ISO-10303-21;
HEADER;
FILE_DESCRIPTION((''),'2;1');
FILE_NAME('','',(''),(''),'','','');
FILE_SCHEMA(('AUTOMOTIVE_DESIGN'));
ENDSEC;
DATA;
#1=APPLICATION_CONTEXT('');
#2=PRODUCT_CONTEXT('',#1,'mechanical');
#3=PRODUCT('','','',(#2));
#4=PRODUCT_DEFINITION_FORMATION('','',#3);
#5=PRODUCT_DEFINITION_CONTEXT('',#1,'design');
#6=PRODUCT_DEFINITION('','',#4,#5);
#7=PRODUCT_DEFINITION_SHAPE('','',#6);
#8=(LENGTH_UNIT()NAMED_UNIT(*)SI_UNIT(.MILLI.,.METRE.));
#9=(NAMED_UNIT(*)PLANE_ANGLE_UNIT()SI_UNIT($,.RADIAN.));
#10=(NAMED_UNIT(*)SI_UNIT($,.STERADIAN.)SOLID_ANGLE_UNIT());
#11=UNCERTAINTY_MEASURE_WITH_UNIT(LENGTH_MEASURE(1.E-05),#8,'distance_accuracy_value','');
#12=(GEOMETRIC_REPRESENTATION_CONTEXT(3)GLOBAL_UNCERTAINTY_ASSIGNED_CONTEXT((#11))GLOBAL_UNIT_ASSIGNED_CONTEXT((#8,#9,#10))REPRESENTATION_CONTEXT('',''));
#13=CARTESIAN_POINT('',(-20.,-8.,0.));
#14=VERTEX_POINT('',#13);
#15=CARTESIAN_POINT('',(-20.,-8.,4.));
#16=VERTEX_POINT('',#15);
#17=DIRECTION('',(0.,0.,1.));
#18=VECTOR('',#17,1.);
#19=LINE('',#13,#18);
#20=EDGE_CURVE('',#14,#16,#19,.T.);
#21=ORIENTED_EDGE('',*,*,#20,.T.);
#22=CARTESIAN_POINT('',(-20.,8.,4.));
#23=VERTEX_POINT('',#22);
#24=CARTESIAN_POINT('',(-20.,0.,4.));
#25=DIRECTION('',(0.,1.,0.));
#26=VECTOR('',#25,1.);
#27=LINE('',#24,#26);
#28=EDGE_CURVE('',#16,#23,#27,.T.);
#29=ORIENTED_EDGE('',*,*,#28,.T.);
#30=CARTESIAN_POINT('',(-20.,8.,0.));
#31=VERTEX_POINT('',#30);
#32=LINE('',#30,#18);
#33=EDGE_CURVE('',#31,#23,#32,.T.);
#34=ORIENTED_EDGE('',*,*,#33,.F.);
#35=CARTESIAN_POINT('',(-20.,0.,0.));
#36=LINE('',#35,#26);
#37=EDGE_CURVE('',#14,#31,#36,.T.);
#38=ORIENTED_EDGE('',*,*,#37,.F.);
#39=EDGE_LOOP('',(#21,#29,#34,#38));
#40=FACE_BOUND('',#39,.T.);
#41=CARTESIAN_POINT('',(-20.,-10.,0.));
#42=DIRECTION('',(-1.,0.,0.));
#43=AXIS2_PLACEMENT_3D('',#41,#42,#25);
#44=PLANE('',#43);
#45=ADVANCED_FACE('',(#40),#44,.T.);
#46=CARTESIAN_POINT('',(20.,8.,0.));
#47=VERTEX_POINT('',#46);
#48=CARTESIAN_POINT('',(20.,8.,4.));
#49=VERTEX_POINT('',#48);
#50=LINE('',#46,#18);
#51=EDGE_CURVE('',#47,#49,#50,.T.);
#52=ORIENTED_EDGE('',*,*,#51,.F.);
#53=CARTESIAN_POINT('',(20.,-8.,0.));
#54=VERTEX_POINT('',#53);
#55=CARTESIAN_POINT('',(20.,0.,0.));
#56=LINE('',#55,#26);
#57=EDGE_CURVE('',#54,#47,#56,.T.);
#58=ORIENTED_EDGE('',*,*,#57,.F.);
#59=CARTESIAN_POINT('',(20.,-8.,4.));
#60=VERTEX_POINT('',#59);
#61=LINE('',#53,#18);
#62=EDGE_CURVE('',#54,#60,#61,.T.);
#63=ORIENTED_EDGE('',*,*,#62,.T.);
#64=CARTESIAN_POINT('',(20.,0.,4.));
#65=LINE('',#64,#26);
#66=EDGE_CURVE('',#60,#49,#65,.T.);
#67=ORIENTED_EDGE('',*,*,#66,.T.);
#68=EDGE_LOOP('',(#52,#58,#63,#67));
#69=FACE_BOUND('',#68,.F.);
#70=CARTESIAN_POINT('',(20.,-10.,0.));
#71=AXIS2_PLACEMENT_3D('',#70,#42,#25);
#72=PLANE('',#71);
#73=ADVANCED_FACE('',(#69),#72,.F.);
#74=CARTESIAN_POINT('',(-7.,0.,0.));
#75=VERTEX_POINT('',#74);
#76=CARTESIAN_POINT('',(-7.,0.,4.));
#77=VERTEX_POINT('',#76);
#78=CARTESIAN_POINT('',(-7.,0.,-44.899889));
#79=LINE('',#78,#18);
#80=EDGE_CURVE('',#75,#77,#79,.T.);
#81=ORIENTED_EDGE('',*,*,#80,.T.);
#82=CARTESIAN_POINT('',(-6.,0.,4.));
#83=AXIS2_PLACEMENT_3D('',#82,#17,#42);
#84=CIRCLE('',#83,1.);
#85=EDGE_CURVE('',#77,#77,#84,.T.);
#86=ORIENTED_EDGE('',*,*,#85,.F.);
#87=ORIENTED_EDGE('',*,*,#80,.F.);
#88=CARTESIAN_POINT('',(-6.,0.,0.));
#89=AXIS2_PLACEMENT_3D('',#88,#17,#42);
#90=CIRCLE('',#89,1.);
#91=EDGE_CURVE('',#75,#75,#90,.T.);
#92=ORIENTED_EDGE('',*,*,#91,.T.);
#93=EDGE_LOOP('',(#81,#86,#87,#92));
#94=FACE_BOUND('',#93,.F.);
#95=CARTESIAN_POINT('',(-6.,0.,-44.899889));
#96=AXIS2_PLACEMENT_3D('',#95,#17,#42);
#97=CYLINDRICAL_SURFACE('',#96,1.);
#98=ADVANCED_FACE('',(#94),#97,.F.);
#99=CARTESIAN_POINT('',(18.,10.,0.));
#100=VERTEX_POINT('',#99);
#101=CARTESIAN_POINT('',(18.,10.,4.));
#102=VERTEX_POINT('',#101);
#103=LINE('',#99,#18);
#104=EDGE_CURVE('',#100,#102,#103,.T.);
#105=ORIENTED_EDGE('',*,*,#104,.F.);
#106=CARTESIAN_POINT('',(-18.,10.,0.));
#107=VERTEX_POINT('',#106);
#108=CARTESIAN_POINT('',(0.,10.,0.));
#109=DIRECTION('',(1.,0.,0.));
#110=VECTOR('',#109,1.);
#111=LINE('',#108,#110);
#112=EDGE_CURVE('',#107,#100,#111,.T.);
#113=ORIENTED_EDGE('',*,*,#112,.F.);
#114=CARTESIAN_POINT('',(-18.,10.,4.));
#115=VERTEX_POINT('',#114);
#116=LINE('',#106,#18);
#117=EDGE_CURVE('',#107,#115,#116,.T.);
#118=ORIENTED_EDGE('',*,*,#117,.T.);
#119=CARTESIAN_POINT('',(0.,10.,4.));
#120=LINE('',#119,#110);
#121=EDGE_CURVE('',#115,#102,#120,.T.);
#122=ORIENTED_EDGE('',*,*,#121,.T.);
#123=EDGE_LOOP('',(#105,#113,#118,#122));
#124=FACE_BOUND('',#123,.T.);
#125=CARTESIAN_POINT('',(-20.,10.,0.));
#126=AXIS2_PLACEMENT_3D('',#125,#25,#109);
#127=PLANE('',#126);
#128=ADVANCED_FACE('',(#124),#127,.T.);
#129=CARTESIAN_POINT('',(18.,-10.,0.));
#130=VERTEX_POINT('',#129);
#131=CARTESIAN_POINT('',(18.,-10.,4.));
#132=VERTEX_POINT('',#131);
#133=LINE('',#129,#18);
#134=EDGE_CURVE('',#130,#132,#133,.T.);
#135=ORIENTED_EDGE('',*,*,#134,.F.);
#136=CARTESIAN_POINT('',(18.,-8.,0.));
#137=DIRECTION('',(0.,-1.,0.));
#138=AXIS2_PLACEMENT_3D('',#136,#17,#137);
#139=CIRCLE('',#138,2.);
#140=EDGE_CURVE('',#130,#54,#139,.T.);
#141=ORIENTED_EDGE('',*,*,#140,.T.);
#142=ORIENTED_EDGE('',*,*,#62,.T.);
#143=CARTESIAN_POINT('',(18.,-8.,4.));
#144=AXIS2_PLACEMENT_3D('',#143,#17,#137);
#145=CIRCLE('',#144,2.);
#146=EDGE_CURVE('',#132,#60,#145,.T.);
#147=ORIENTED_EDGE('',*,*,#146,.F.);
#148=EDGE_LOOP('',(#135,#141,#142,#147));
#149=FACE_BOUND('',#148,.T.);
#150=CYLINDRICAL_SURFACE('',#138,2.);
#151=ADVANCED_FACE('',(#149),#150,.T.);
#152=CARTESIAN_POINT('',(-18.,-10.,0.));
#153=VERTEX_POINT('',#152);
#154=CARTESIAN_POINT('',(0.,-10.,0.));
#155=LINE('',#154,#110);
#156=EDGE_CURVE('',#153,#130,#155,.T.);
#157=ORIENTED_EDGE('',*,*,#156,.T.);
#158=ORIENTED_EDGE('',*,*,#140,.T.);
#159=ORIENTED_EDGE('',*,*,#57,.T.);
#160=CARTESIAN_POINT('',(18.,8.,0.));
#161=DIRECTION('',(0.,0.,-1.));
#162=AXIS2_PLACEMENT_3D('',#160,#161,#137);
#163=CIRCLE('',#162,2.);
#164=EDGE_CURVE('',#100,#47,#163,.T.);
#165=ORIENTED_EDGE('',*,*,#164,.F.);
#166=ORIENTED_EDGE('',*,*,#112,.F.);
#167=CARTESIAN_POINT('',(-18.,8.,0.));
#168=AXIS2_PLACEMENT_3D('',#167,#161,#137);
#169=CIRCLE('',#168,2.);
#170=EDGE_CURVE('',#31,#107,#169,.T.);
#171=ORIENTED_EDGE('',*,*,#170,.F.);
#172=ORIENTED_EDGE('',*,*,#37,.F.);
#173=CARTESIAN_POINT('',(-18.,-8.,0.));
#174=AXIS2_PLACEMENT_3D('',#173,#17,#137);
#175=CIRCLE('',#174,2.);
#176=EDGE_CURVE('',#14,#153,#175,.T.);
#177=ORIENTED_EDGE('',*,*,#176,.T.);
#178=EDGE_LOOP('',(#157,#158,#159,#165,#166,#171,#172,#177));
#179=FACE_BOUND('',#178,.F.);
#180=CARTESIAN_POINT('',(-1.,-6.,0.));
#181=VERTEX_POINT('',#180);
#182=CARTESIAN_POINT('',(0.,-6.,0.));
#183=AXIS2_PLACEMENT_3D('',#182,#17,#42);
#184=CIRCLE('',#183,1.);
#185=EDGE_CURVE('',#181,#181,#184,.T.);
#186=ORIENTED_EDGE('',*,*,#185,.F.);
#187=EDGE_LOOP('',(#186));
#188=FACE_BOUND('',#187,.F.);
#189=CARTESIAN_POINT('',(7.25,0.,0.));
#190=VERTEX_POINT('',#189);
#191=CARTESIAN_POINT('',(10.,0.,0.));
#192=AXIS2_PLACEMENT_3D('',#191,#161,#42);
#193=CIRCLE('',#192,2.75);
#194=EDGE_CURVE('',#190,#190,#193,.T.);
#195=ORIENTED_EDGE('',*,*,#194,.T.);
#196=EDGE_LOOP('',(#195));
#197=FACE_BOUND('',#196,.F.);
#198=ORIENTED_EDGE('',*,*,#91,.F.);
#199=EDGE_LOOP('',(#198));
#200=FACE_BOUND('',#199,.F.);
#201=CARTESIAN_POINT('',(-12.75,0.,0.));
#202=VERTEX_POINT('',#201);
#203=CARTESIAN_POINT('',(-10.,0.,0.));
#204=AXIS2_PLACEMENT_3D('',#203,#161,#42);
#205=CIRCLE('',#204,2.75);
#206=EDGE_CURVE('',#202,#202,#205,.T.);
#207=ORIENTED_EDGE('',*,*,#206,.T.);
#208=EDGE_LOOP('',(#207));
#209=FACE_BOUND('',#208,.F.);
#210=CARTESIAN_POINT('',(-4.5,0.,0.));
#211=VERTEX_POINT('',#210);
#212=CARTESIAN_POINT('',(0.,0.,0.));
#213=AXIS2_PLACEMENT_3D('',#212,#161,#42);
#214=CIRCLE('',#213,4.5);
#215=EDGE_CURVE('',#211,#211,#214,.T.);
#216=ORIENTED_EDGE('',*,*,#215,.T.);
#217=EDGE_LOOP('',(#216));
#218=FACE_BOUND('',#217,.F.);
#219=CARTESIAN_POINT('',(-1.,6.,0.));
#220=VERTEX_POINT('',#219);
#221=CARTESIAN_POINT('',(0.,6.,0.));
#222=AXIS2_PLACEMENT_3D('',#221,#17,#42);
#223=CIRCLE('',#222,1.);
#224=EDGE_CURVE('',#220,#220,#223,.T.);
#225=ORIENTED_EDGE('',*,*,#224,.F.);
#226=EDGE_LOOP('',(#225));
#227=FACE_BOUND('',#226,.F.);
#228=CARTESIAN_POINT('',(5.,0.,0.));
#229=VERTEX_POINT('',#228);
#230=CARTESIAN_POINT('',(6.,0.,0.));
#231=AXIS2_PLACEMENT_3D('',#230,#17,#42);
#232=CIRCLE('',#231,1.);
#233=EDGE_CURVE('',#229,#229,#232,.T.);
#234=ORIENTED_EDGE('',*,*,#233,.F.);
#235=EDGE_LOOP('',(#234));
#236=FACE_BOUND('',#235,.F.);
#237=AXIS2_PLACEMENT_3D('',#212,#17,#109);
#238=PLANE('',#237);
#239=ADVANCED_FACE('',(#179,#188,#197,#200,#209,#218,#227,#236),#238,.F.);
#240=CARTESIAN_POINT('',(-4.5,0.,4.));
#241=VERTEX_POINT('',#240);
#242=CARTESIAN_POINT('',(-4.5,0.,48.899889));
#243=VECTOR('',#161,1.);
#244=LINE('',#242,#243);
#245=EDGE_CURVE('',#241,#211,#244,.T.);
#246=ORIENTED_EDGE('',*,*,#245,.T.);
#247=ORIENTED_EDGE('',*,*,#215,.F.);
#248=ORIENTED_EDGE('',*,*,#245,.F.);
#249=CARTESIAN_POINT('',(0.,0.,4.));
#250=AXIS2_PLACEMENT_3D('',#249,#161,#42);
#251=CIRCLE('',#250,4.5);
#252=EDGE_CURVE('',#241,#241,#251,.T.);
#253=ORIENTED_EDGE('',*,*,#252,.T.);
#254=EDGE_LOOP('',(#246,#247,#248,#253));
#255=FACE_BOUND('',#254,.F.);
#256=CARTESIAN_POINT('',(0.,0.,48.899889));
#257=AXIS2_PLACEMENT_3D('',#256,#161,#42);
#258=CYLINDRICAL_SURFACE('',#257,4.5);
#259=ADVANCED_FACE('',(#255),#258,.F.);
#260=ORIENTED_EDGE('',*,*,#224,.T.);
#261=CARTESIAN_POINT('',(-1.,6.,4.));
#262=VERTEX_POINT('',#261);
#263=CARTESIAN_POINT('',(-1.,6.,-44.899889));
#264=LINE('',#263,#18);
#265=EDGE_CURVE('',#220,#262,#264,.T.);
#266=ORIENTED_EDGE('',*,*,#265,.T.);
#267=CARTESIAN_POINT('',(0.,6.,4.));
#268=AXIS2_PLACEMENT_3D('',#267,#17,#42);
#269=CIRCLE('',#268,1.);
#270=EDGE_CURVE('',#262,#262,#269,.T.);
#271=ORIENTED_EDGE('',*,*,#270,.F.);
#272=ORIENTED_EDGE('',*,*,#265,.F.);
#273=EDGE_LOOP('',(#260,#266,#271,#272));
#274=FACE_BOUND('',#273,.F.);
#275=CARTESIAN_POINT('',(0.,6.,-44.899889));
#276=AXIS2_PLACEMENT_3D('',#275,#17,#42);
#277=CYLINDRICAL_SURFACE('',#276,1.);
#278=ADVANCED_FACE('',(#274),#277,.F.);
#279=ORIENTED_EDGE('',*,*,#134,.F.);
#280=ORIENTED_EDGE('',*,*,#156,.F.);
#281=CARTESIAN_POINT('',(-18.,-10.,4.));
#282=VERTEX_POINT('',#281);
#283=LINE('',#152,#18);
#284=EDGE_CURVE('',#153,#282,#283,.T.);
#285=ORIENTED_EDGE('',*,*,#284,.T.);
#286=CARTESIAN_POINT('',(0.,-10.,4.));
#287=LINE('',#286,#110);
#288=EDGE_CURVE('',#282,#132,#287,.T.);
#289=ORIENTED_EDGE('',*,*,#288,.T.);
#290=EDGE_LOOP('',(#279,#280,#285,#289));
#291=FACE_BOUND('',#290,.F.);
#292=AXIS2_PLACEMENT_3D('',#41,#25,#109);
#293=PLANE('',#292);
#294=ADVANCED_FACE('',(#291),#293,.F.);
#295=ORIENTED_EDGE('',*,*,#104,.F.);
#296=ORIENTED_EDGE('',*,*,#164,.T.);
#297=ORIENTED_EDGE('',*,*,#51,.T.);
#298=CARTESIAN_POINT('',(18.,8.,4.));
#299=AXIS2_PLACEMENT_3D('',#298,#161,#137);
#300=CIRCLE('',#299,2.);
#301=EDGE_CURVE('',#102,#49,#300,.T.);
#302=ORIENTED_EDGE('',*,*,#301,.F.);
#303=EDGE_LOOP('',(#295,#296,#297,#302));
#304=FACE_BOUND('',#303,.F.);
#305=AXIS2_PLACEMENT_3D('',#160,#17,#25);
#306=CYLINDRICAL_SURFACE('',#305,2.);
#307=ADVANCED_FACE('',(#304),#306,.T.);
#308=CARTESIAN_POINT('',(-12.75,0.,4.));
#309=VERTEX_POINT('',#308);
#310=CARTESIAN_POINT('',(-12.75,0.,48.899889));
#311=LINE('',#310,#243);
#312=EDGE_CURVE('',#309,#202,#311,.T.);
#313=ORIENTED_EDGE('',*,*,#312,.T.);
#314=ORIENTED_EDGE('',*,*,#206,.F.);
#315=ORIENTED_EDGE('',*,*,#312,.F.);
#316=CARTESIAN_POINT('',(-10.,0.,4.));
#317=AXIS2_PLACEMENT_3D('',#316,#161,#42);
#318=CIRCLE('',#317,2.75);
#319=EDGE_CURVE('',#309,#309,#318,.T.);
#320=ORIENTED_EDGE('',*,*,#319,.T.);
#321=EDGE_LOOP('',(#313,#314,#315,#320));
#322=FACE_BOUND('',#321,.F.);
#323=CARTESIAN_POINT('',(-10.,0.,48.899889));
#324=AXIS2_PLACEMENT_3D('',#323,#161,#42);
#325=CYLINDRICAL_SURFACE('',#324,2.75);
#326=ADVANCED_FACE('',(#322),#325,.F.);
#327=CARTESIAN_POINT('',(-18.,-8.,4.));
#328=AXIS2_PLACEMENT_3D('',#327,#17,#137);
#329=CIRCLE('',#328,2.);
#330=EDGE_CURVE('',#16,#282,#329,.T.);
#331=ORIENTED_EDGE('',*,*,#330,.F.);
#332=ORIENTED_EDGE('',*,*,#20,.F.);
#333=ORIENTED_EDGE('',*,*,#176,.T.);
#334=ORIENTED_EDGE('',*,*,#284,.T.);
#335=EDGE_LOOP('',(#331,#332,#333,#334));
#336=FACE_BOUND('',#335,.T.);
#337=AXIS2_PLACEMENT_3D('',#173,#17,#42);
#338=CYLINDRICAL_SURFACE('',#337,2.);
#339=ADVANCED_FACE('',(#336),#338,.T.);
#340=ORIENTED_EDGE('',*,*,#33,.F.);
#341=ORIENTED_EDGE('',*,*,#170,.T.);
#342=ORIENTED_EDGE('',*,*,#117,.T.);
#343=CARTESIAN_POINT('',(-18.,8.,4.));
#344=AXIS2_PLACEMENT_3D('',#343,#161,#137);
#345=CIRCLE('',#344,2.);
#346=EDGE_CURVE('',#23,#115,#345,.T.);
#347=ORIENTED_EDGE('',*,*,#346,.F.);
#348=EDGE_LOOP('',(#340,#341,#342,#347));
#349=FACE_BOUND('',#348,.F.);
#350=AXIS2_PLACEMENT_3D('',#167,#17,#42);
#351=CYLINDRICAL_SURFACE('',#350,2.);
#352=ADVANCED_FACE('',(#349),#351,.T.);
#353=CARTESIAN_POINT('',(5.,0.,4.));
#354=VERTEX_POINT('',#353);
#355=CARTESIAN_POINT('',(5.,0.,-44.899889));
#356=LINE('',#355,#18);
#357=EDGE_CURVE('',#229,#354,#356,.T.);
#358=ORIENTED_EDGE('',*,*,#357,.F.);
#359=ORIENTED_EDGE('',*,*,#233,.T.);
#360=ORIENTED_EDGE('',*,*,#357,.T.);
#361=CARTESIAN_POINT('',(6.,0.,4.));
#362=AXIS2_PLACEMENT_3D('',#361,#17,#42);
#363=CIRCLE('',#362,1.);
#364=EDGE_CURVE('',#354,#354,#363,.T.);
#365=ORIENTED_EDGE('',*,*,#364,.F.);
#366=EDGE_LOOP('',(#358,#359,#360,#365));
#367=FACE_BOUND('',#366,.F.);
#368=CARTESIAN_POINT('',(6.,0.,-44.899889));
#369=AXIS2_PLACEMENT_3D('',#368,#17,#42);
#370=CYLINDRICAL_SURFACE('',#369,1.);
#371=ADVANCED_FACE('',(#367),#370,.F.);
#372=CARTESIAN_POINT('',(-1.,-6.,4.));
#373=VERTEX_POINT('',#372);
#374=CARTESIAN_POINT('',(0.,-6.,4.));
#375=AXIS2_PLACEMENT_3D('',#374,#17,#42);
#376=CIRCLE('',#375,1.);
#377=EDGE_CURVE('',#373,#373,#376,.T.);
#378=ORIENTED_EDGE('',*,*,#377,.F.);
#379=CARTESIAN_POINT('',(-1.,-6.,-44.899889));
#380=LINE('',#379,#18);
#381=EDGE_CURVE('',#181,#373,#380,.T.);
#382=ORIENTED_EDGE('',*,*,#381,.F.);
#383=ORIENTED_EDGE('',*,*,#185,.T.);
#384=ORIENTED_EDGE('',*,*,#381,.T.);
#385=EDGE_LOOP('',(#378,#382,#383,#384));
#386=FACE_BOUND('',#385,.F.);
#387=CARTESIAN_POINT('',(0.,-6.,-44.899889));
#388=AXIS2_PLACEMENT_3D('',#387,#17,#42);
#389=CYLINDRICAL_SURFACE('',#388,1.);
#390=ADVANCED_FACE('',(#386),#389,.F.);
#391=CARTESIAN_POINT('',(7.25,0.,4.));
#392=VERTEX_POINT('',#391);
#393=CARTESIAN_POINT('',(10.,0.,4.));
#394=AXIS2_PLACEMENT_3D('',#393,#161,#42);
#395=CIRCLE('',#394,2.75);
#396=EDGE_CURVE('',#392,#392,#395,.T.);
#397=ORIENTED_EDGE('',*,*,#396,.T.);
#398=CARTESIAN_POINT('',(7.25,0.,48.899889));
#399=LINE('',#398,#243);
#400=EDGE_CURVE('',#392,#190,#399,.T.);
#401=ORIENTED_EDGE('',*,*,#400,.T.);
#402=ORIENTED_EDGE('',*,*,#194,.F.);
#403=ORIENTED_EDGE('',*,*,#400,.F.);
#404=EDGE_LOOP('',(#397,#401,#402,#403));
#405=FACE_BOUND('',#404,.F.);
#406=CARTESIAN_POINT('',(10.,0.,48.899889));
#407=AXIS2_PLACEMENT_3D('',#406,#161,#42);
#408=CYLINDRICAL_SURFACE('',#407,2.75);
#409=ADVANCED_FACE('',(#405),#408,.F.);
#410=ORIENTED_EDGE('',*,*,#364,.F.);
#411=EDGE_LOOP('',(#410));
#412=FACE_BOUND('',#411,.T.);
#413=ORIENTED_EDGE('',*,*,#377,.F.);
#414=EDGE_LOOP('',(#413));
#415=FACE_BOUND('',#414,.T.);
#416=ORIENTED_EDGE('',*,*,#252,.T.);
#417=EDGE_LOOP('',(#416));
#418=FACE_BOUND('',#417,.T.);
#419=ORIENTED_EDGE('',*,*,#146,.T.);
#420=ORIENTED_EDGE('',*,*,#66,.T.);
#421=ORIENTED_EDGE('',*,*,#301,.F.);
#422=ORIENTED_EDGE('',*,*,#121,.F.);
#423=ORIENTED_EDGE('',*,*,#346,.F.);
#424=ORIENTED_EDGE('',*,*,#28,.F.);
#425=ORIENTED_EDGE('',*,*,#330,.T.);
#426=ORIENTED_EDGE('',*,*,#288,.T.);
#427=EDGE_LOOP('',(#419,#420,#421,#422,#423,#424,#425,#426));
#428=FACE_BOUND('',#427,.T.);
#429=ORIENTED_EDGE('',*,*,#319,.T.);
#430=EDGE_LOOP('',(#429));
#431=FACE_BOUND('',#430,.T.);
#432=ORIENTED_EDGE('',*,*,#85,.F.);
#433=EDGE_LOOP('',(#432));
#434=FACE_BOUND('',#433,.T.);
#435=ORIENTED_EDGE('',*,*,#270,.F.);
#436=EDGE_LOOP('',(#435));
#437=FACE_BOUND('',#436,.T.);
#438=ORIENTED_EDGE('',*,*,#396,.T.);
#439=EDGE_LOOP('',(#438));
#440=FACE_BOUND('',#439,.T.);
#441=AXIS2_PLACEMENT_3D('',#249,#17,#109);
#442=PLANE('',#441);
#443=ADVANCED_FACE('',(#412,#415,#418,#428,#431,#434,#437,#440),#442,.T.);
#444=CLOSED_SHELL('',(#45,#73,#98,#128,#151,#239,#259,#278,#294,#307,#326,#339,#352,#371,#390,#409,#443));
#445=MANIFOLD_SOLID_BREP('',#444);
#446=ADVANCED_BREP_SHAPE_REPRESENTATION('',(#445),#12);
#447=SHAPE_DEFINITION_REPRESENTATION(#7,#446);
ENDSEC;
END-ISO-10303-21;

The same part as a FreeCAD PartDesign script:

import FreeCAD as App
import Part
import Sketcher
from FreeCAD import Vector
Q = App.Units.Quantity


def edges_at(feature, points):
    """Names of the edges that pass closest to the given points."""
    edges = feature.Shape.Edges
    near = lambda p: min(range(len(edges)), key=lambda i: edges[i].distToShape(Part.Vertex(*p))[0])
    return sorted({f"Edge{near(p) + 1}" for p in points})

doc = App.newDocument("Part")
body = doc.addObject("PartDesign::Body", "Body")

# Sketch on XY plane
sketch1 = body.newObject("Sketcher::SketchObject", "Sketch")
sketch1.AttachmentSupport = (doc.getObject("XY_Plane"), [""])
sketch1.MapMode = "FlatFace"
sketch1.addGeometry(Part.LineSegment(Vector(-20, 10, 0), Vector(-20, -10, 0)), False)
sketch1.addGeometry(Part.LineSegment(Vector(-20, -10, 0), Vector(20, -10, 0)), False)
sketch1.addGeometry(Part.LineSegment(Vector(20, -10, 0), Vector(20, 10, 0)), False)
sketch1.addGeometry(Part.LineSegment(Vector(20, 10, 0), Vector(-20, 10, 0)), False)
sketch1.addConstraint(Sketcher.Constraint("Coincident", 0, 2, 1, 1))
sketch1.addConstraint(Sketcher.Constraint("Coincident", 1, 2, 2, 1))
sketch1.addConstraint(Sketcher.Constraint("Coincident", 2, 2, 3, 1))
sketch1.addConstraint(Sketcher.Constraint("Coincident", 3, 2, 0, 1))
sketch1.addConstraint(Sketcher.Constraint("Vertical", 0))
sketch1.addConstraint(Sketcher.Constraint("Horizontal", 1))
sketch1.addConstraint(Sketcher.Constraint("Vertical", 2))
sketch1.addConstraint(Sketcher.Constraint("Horizontal", 3))
sketch1.addConstraint(Sketcher.Constraint("Symmetric", 0, 2, 2, 2, -1, 1))
sketch1.addConstraint(Sketcher.Constraint("DistanceX", 1, 1, 1, 2, Q("40 mm")))
sketch1.addConstraint(Sketcher.Constraint("DistanceY", 0, 2, 0, 1, Q("20 mm")))
pad1 = body.newObject("PartDesign::Pad", "Pad")
pad1.Profile = sketch1
pad1.Length = 4

# Sketch on XY plane
sketch2 = body.newObject("Sketcher::SketchObject", "Sketch001")
sketch2.AttachmentSupport = (doc.getObject("XY_Plane"), [""])
sketch2.MapMode = "FlatFace"
sketch2.addGeometry(Part.Circle(Vector(0, 6, 0), Vector(0, 0, 1), 1), False)
sketch2.addGeometry(Part.Circle(Vector(-6, 0, 0), Vector(0, 0, 1), 1), False)
sketch2.addGeometry(Part.Circle(Vector(6, 0, 0), Vector(0, 0, 1), 1), False)
sketch2.addGeometry(Part.Circle(Vector(0, -6, 0), Vector(0, 0, 1), 1), False)
sketch2.addConstraint(Sketcher.Constraint("Equal", 0, 1))
sketch2.addConstraint(Sketcher.Constraint("Equal", 1, 2))
sketch2.addConstraint(Sketcher.Constraint("Equal", 2, 3))
sketch2.addConstraint(Sketcher.Constraint("Symmetric", 1, 3, 2, 3, -1, 1))
sketch2.addConstraint(Sketcher.Constraint("Symmetric", 0, 3, 3, 3, -1, 1))
sketch2.addConstraint(Sketcher.Constraint("PointOnObject", 0, 3, -2))
sketch2.addConstraint(Sketcher.Constraint("PointOnObject", 1, 3, -1))
sketch2.addConstraint(Sketcher.Constraint("Diameter", 0, Q("2 mm")))
sketch2.addConstraint(Sketcher.Constraint("DistanceY", -1, 1, 0, 3, Q("6 mm")))
sketch2.addConstraint(Sketcher.Constraint("DistanceX", 1, 3, -1, 1, Q("6 mm")))
doc.recompute()
hole = body.newObject("PartDesign::Hole", "Hole")
hole.Profile = sketch2
hole.ThreadType = "None"
hole.Diameter = 2
hole.DepthType = "ThroughAll"
hole.Reversed = True

# Sketch on XY plane
sketch3 = body.newObject("Sketcher::SketchObject", "Sketch002")
sketch3.AttachmentSupport = (doc.getObject("XY_Plane"), [""])
sketch3.MapMode = "FlatFace"
sketch3.AttachmentOffset = App.Placement(Vector(0, 0, 4), App.Rotation())
sketch3.addGeometry(Part.Circle(Vector(0, 0, 0), Vector(0, 0, 1), 4.5), False)
sketch3.addConstraint(Sketcher.Constraint("Coincident", 0, 3, -1, 1))
sketch3.addConstraint(Sketcher.Constraint("Diameter", 0, Q("9 mm")))
doc.recompute()
hole2 = body.newObject("PartDesign::Hole", "Hole001")
hole2.Profile = sketch3
hole2.ThreadType = "None"
hole2.Diameter = 9
hole2.DepthType = "ThroughAll"
doc.recompute()

fillet = body.newObject("PartDesign::Fillet", "Fillet")
fillet.Base = (hole2, edges_at(hole2, [
    (20, 10, 2),
    (20, -10, 2),
    (-20, -10, 2),
    (-20, 10, 2),
]))
fillet.Radius = 2

# Sketch on XY plane
sketch4 = body.newObject("Sketcher::SketchObject", "Sketch003")
sketch4.AttachmentSupport = (doc.getObject("XY_Plane"), [""])
sketch4.MapMode = "FlatFace"
sketch4.AttachmentOffset = App.Placement(Vector(0, 0, 4), App.Rotation())
sketch4.addGeometry(Part.Circle(Vector(10, 0, 0), Vector(0, 0, 1), 2.8), False)
sketch4.addGeometry(Part.Circle(Vector(-10, 0, 0), Vector(0, 0, 1), 2.8), False)
sketch4.addConstraint(Sketcher.Constraint("Equal", 0, 1))
sketch4.addConstraint(Sketcher.Constraint("Symmetric", 0, 3, 1, 3, -1, 1))
sketch4.addConstraint(Sketcher.Constraint("PointOnObject", 0, 3, -1))
sketch4.addConstraint(Sketcher.Constraint("Diameter", 0, Q("5.5 mm")))
sketch4.addConstraint(Sketcher.Constraint("DistanceX", -1, 1, 0, 3, Q("10 mm")))
doc.recompute()
hole3 = body.newObject("PartDesign::Hole", "Hole002")
hole3.Profile = sketch4
hole3.ThreadType = "None"
hole3.Diameter = 5.5
hole3.DepthType = "ThroughAll"

doc.recompute()
